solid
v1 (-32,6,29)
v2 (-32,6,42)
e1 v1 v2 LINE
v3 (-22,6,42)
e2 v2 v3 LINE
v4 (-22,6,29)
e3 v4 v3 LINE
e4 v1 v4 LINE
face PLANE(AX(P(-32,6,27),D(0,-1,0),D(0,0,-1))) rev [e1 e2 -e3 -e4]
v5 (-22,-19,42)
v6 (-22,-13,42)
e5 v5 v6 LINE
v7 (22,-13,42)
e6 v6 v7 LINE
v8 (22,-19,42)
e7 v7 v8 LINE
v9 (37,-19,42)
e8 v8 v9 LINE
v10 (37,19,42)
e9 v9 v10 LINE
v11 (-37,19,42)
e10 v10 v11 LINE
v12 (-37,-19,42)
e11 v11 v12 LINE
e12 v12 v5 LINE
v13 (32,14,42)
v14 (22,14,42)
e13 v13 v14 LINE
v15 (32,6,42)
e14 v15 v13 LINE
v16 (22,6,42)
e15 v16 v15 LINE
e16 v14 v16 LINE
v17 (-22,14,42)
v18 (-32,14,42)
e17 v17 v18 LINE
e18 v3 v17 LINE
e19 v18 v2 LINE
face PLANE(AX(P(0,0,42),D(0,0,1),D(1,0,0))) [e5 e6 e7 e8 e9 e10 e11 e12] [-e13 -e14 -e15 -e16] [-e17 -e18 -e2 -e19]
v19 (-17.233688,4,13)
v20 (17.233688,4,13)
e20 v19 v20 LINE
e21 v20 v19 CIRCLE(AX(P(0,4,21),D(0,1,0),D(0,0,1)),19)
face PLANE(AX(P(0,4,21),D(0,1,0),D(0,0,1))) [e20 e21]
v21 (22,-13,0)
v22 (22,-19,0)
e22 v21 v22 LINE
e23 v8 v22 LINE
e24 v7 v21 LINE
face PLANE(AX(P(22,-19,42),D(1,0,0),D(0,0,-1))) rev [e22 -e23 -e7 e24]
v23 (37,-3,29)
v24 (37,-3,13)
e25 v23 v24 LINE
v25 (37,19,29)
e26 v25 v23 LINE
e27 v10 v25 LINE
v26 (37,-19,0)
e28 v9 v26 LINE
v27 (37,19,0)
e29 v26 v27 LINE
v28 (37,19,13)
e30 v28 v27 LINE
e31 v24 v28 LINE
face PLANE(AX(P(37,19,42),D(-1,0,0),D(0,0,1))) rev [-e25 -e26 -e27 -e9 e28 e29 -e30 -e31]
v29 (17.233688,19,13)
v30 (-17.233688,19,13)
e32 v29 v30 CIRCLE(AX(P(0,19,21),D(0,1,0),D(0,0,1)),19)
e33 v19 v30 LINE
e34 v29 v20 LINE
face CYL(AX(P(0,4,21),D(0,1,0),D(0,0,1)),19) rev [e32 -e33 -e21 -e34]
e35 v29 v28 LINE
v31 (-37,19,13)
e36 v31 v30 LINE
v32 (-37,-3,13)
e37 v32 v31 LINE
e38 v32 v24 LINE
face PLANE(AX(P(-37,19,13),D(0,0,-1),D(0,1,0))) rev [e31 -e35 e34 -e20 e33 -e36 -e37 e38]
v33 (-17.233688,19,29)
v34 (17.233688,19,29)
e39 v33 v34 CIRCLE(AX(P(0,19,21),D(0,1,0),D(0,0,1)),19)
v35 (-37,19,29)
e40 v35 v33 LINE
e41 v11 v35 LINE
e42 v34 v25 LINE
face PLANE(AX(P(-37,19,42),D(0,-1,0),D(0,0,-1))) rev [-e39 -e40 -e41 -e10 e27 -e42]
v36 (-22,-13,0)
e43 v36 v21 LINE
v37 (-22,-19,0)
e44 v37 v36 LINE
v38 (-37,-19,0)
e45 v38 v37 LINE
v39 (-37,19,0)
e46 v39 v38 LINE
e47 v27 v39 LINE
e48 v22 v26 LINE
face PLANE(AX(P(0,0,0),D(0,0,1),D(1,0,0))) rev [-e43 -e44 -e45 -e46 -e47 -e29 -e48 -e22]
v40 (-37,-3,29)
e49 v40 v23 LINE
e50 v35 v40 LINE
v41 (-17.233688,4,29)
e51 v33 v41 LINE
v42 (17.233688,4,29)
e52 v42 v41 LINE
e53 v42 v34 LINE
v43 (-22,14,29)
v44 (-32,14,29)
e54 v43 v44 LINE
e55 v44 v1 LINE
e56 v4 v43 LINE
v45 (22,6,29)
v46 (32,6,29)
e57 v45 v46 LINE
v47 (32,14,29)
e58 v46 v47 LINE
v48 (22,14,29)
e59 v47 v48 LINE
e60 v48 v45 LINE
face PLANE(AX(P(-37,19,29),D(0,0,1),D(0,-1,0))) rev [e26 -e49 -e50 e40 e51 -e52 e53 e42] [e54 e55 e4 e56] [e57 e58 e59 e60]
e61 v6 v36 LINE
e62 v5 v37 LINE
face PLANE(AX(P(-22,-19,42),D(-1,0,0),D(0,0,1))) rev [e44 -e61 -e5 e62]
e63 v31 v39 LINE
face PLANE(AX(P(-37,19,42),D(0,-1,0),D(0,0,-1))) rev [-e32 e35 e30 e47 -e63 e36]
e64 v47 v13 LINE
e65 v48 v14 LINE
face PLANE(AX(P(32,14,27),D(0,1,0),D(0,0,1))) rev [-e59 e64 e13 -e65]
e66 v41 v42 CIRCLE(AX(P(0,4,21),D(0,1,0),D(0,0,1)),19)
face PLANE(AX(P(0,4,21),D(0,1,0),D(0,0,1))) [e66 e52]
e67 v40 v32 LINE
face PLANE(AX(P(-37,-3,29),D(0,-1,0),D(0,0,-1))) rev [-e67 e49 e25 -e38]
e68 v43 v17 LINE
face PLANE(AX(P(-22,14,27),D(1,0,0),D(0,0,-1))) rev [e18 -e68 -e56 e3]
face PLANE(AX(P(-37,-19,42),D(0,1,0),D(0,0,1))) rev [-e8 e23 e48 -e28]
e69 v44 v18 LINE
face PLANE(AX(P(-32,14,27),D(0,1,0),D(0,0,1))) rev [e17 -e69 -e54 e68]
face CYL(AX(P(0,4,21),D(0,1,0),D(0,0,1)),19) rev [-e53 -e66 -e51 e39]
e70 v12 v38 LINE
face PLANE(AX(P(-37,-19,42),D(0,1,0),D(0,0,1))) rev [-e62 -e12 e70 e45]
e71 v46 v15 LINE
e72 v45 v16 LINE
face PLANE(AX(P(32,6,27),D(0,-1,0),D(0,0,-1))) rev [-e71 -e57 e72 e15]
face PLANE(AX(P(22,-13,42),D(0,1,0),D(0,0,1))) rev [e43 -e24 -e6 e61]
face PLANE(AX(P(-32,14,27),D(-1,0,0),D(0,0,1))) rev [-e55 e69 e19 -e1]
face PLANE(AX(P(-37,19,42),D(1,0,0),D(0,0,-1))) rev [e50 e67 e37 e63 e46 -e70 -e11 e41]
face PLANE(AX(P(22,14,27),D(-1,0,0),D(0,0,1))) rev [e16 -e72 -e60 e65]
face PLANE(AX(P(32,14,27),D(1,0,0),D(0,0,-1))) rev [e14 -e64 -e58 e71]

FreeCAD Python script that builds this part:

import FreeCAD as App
import Part
import Sketcher

doc = App.newDocument("Part")
body = doc.addObject("PartDesign::Body", "Body")

# Sketch on XY plane
sketch1 = doc.addObject("Sketcher::SketchObject", "Sketch")
body.addObject(sketch1)
sketch1.AttachmentSupport = (doc.XY_Plane, [""])
sketch1.MapMode = "FlatFace"
sketch1.addGeometry(Part.LineSegment(App.Vector(-37, 19, 0), App.Vector(-37, -19, 0)), False)
sketch1.addGeometry(Part.LineSegment(App.Vector(-37, -19, 0), App.Vector(37, -19, 0)), False)
sketch1.addGeometry(Part.LineSegment(App.Vector(37, -19, 0), App.Vector(37, 19, 0)), False)
sketch1.addGeometry(Part.LineSegment(App.Vector(37, 19, 0), App.Vector(-37, 19, 0)), False)
sketch1.addConstraint(Sketcher.Constraint("Coincident", 0, 2, 1, 1))
sketch1.addConstraint(Sketcher.Constraint("Coincident", 1, 2, 2, 1))
sketch1.addConstraint(Sketcher.Constraint("Coincident", 2, 2, 3, 1))
sketch1.addConstraint(Sketcher.Constraint("Coincident", 3, 2, 0, 1))
sketch1.addConstraint(Sketcher.Constraint("Vertical", 0))
sketch1.addConstraint(Sketcher.Constraint("Horizontal", 1))
sketch1.addConstraint(Sketcher.Constraint("Vertical", 2))
sketch1.addConstraint(Sketcher.Constraint("Horizontal", 3))
sketch1.addConstraint(Sketcher.Constraint("Symmetric", 0, 2, 2, 2, -1, 1))
sketch1.addConstraint(Sketcher.Constraint("DistanceX", 1, 1, 1, 2, 74.0))
sketch1.addConstraint(Sketcher.Constraint("DistanceY", 0, 2, 0, 1, 38.0))
pad1 = doc.addObject("PartDesign::Pad", "Pad")
body.addObject(pad1)
pad1.Profile = sketch1
pad1.Length = 42

# Sketch on XY plane
sketch2 = doc.addObject("Sketcher::SketchObject", "Sketch001")
body.addObject(sketch2)
sketch2.AttachmentSupport = (doc.XY_Plane, [""])
sketch2.MapMode = "FlatFace"
sketch2.addGeometry(Part.LineSegment(App.Vector(22, -13, 0), App.Vector(22, -19, 0)), False)
sketch2.addGeometry(Part.LineSegment(App.Vector(22, -19, 0), App.Vector(-22, -19, 0)), False)
sketch2.addGeometry(Part.LineSegment(App.Vector(-22, -19, 0), App.Vector(-22, -13, 0)), False)
sketch2.addGeometry(Part.LineSegment(App.Vector(-22, -13, 0), App.Vector(22, -13, 0)), False)
sketch2.addConstraint(Sketcher.Constraint("Coincident", 0, 2, 1, 1))
sketch2.addConstraint(Sketcher.Constraint("Coincident", 1, 2, 2, 1))
sketch2.addConstraint(Sketcher.Constraint("Coincident", 2, 2, 3, 1))
sketch2.addConstraint(Sketcher.Constraint("Coincident", 3, 2, 0, 1))
sketch2.addConstraint(Sketcher.Constraint("Vertical", 0))
sketch2.addConstraint(Sketcher.Constraint("Horizontal", 1))
sketch2.addConstraint(Sketcher.Constraint("Vertical", 2))
sketch2.addConstraint(Sketcher.Constraint("Horizontal", 3))
sketch2.addConstraint(Sketcher.Constraint("DistanceX", 1, 2, 1, 1, 44.0))
sketch2.addConstraint(Sketcher.Constraint("DistanceY", 0, 2, 0, 1, 6.0))
sketch2.addConstraint(Sketcher.Constraint("DistanceX", -1, 1, 0, 2, 22.0))
sketch2.addConstraint(Sketcher.Constraint("DistanceY", 0, 2, -1, 1, 19.0))
pocket1 = doc.addObject("PartDesign::Pocket", "Pocket")
body.addObject(pocket1)
pocket1.Profile = sketch2
pocket1.Length = 42
pocket1.Reversed = True

# Sketch on YZ plane
sketch3 = doc.addObject("Sketcher::SketchObject", "Sketch002")
body.addObject(sketch3)
sketch3.AttachmentSupport = (doc.YZ_Plane, [""])
sketch3.MapMode = "FlatFace"
sketch3.AttachmentOffset = App.Placement(App.Vector(0, 0, 37), App.Rotation())
sketch3.addGeometry(Part.LineSegment(App.Vector(19, 29, 0), App.Vector(-3, 29, 0)), False)
sketch3.addGeometry(Part.LineSegment(App.Vector(-3, 29, 0), App.Vector(-3, 13, 0)), False)
sketch3.addGeometry(Part.LineSegment(App.Vector(-3, 13, 0), App.Vector(19, 13, 0)), False)
sketch3.addGeometry(Part.LineSegment(App.Vector(19, 13, 0), App.Vector(19, 29, 0)), False)
sketch3.addConstraint(Sketcher.Constraint("Coincident", 0, 2, 1, 1))
sketch3.addConstraint(Sketcher.Constraint("Coincident", 1, 2, 2, 1))
sketch3.addConstraint(Sketcher.Constraint("Coincident", 2, 2, 3, 1))
sketch3.addConstraint(Sketcher.Constraint("Coincident", 3, 2, 0, 1))
sketch3.addConstraint(Sketcher.Constraint("Horizontal", 0))
sketch3.addConstraint(Sketcher.Constraint("Vertical", 1))
sketch3.addConstraint(Sketcher.Constraint("Horizontal", 2))
sketch3.addConstraint(Sketcher.Constraint("Vertical", 3))
sketch3.addConstraint(Sketcher.Constraint("DistanceX", 0, 2, 0, 1, 22.0))
sketch3.addConstraint(Sketcher.Constraint("DistanceY", 1, 2, 1, 1, 16.0))
sketch3.addConstraint(Sketcher.Constraint("DistanceX", 0, 2, -1, 1, 3.0))
sketch3.addConstraint(Sketcher.Constraint("DistanceY", -1, 1, 0, 2, 29.0))
pocket2 = doc.addObject("PartDesign::Pocket", "Pocket001")
body.addObject(pocket2)
pocket2.Profile = sketch3
pocket2.Length = 74

# Sketch on XZ plane
sketch4 = doc.addObject("Sketcher::SketchObject", "Sketch003")
body.addObject(sketch4)
sketch4.AttachmentSupport = (doc.XZ_Plane, [""])
sketch4.MapMode = "FlatFace"
sketch4.AttachmentOffset = App.Placement(App.Vector(0, 0, -19), App.Rotation())
sketch4.addGeometry(Part.Circle(App.Vector(0, 21, 0), App.Vector(0, 0, 1), 19), False)
sketch4.addConstraint(Sketcher.Constraint("PointOnObject", 0, 3, -2))
sketch4.addConstraint(Sketcher.Constraint("Diameter", 0, 38.0))
sketch4.addConstraint(Sketcher.Constraint("DistanceY", -1, 1, 0, 3, 21.0))
pocket3 = doc.addObject("PartDesign::Pocket", "Pocket002")
body.addObject(pocket3)
pocket3.Profile = sketch4
pocket3.Length = 15
pocket3.Reversed = True

# Sketch on XY plane
sketch5 = doc.addObject("Sketcher::SketchObject", "Sketch004")
body.addObject(sketch5)
sketch5.AttachmentSupport = (doc.XY_Plane, [""])
sketch5.MapMode = "FlatFace"
sketch5.AttachmentOffset = App.Placement(App.Vector(0, 0, 42), App.Rotation())
sketch5.addGeometry(Part.LineSegment(App.Vector(-32, 14, 0), App.Vector(-32, 6, 0)), False)
sketch5.addGeometry(Part.LineSegment(App.Vector(-32, 6, 0), App.Vector(-22, 6, 0)), False)
sketch5.addGeometry(Part.LineSegment(App.Vector(-22, 6, 0), App.Vector(-22, 14, 0)), False)
sketch5.addGeometry(Part.LineSegment(App.Vector(-22, 14, 0), App.Vector(-32, 14, 0)), False)
sketch5.addGeometry(Part.LineSegment(App.Vector(22, 14, 0), App.Vector(22, 6, 0)), False)
sketch5.addGeometry(Part.LineSegment(App.Vector(22, 6, 0), App.Vector(32, 6, 0)), False)
sketch5.addGeometry(Part.LineSegment(App.Vector(32, 6, 0), App.Vector(32, 14, 0)), False)
sketch5.addGeometry(Part.LineSegment(App.Vector(32, 14, 0), App.Vector(22, 14, 0)), False)
sketch5.addConstraint(Sketcher.Constraint("Coincident", 0, 2, 1, 1))
sketch5.addConstraint(Sketcher.Constraint("Coincident", 1, 2, 2, 1))
sketch5.addConstraint(Sketcher.Constraint("Coincident", 2, 2, 3, 1))
sketch5.addConstraint(Sketcher.Constraint("Coincident", 3, 2, 0, 1))
sketch5.addConstraint(Sketcher.Constraint("Coincident", 4, 2, 5, 1))
sketch5.addConstraint(Sketcher.Constraint("Coincident", 5, 2, 6, 1))
sketch5.addConstraint(Sketcher.Constraint("Coincident", 6, 2, 7, 1))
sketch5.addConstraint(Sketcher.Constraint("Coincident", 7, 2, 4, 1))
sketch5.addConstraint(Sketcher.Constraint("Vertical", 0))
sketch5.addConstraint(Sketcher.Constraint("Horizontal", 1))
sketch5.addConstraint(Sketcher.Constraint("Vertical", 2))
sketch5.addConstraint(Sketcher.Constraint("Horizontal", 3))
sketch5.addConstraint(Sketcher.Constraint("Vertical", 4))
sketch5.addConstraint(Sketcher.Constraint("Horizontal", 5))
sketch5.addConstraint(Sketcher.Constraint("Vertical", 6))
sketch5.addConstraint(Sketcher.Constraint("Horizontal", 7))
sketch5.addConstraint(Sketcher.Constraint("Symmetric", 1, 2, 4, 2, -2))
sketch5.addConstraint(Sketcher.Constraint("Symmetric", 3, 2, 6, 2, -2))
sketch5.addConstraint(Sketcher.Constraint("DistanceX", 1, 1, 1, 2, 10.0))
sketch5.addConstraint(Sketcher.Constraint("DistanceY", 0, 2, 0, 1, 8.0))
sketch5.addConstraint(Sketcher.Constraint("DistanceX", 0, 2, -1, 1, 32.0))
sketch5.addConstraint(Sketcher.Constraint("DistanceY", -1, 1, 0, 2, 6.0))
pocket4 = doc.addObject("PartDesign::Pocket", "Pocket003")
body.addObject(pocket4)
pocket4.Profile = sketch5
pocket4.Length = 15

doc.recompute()
